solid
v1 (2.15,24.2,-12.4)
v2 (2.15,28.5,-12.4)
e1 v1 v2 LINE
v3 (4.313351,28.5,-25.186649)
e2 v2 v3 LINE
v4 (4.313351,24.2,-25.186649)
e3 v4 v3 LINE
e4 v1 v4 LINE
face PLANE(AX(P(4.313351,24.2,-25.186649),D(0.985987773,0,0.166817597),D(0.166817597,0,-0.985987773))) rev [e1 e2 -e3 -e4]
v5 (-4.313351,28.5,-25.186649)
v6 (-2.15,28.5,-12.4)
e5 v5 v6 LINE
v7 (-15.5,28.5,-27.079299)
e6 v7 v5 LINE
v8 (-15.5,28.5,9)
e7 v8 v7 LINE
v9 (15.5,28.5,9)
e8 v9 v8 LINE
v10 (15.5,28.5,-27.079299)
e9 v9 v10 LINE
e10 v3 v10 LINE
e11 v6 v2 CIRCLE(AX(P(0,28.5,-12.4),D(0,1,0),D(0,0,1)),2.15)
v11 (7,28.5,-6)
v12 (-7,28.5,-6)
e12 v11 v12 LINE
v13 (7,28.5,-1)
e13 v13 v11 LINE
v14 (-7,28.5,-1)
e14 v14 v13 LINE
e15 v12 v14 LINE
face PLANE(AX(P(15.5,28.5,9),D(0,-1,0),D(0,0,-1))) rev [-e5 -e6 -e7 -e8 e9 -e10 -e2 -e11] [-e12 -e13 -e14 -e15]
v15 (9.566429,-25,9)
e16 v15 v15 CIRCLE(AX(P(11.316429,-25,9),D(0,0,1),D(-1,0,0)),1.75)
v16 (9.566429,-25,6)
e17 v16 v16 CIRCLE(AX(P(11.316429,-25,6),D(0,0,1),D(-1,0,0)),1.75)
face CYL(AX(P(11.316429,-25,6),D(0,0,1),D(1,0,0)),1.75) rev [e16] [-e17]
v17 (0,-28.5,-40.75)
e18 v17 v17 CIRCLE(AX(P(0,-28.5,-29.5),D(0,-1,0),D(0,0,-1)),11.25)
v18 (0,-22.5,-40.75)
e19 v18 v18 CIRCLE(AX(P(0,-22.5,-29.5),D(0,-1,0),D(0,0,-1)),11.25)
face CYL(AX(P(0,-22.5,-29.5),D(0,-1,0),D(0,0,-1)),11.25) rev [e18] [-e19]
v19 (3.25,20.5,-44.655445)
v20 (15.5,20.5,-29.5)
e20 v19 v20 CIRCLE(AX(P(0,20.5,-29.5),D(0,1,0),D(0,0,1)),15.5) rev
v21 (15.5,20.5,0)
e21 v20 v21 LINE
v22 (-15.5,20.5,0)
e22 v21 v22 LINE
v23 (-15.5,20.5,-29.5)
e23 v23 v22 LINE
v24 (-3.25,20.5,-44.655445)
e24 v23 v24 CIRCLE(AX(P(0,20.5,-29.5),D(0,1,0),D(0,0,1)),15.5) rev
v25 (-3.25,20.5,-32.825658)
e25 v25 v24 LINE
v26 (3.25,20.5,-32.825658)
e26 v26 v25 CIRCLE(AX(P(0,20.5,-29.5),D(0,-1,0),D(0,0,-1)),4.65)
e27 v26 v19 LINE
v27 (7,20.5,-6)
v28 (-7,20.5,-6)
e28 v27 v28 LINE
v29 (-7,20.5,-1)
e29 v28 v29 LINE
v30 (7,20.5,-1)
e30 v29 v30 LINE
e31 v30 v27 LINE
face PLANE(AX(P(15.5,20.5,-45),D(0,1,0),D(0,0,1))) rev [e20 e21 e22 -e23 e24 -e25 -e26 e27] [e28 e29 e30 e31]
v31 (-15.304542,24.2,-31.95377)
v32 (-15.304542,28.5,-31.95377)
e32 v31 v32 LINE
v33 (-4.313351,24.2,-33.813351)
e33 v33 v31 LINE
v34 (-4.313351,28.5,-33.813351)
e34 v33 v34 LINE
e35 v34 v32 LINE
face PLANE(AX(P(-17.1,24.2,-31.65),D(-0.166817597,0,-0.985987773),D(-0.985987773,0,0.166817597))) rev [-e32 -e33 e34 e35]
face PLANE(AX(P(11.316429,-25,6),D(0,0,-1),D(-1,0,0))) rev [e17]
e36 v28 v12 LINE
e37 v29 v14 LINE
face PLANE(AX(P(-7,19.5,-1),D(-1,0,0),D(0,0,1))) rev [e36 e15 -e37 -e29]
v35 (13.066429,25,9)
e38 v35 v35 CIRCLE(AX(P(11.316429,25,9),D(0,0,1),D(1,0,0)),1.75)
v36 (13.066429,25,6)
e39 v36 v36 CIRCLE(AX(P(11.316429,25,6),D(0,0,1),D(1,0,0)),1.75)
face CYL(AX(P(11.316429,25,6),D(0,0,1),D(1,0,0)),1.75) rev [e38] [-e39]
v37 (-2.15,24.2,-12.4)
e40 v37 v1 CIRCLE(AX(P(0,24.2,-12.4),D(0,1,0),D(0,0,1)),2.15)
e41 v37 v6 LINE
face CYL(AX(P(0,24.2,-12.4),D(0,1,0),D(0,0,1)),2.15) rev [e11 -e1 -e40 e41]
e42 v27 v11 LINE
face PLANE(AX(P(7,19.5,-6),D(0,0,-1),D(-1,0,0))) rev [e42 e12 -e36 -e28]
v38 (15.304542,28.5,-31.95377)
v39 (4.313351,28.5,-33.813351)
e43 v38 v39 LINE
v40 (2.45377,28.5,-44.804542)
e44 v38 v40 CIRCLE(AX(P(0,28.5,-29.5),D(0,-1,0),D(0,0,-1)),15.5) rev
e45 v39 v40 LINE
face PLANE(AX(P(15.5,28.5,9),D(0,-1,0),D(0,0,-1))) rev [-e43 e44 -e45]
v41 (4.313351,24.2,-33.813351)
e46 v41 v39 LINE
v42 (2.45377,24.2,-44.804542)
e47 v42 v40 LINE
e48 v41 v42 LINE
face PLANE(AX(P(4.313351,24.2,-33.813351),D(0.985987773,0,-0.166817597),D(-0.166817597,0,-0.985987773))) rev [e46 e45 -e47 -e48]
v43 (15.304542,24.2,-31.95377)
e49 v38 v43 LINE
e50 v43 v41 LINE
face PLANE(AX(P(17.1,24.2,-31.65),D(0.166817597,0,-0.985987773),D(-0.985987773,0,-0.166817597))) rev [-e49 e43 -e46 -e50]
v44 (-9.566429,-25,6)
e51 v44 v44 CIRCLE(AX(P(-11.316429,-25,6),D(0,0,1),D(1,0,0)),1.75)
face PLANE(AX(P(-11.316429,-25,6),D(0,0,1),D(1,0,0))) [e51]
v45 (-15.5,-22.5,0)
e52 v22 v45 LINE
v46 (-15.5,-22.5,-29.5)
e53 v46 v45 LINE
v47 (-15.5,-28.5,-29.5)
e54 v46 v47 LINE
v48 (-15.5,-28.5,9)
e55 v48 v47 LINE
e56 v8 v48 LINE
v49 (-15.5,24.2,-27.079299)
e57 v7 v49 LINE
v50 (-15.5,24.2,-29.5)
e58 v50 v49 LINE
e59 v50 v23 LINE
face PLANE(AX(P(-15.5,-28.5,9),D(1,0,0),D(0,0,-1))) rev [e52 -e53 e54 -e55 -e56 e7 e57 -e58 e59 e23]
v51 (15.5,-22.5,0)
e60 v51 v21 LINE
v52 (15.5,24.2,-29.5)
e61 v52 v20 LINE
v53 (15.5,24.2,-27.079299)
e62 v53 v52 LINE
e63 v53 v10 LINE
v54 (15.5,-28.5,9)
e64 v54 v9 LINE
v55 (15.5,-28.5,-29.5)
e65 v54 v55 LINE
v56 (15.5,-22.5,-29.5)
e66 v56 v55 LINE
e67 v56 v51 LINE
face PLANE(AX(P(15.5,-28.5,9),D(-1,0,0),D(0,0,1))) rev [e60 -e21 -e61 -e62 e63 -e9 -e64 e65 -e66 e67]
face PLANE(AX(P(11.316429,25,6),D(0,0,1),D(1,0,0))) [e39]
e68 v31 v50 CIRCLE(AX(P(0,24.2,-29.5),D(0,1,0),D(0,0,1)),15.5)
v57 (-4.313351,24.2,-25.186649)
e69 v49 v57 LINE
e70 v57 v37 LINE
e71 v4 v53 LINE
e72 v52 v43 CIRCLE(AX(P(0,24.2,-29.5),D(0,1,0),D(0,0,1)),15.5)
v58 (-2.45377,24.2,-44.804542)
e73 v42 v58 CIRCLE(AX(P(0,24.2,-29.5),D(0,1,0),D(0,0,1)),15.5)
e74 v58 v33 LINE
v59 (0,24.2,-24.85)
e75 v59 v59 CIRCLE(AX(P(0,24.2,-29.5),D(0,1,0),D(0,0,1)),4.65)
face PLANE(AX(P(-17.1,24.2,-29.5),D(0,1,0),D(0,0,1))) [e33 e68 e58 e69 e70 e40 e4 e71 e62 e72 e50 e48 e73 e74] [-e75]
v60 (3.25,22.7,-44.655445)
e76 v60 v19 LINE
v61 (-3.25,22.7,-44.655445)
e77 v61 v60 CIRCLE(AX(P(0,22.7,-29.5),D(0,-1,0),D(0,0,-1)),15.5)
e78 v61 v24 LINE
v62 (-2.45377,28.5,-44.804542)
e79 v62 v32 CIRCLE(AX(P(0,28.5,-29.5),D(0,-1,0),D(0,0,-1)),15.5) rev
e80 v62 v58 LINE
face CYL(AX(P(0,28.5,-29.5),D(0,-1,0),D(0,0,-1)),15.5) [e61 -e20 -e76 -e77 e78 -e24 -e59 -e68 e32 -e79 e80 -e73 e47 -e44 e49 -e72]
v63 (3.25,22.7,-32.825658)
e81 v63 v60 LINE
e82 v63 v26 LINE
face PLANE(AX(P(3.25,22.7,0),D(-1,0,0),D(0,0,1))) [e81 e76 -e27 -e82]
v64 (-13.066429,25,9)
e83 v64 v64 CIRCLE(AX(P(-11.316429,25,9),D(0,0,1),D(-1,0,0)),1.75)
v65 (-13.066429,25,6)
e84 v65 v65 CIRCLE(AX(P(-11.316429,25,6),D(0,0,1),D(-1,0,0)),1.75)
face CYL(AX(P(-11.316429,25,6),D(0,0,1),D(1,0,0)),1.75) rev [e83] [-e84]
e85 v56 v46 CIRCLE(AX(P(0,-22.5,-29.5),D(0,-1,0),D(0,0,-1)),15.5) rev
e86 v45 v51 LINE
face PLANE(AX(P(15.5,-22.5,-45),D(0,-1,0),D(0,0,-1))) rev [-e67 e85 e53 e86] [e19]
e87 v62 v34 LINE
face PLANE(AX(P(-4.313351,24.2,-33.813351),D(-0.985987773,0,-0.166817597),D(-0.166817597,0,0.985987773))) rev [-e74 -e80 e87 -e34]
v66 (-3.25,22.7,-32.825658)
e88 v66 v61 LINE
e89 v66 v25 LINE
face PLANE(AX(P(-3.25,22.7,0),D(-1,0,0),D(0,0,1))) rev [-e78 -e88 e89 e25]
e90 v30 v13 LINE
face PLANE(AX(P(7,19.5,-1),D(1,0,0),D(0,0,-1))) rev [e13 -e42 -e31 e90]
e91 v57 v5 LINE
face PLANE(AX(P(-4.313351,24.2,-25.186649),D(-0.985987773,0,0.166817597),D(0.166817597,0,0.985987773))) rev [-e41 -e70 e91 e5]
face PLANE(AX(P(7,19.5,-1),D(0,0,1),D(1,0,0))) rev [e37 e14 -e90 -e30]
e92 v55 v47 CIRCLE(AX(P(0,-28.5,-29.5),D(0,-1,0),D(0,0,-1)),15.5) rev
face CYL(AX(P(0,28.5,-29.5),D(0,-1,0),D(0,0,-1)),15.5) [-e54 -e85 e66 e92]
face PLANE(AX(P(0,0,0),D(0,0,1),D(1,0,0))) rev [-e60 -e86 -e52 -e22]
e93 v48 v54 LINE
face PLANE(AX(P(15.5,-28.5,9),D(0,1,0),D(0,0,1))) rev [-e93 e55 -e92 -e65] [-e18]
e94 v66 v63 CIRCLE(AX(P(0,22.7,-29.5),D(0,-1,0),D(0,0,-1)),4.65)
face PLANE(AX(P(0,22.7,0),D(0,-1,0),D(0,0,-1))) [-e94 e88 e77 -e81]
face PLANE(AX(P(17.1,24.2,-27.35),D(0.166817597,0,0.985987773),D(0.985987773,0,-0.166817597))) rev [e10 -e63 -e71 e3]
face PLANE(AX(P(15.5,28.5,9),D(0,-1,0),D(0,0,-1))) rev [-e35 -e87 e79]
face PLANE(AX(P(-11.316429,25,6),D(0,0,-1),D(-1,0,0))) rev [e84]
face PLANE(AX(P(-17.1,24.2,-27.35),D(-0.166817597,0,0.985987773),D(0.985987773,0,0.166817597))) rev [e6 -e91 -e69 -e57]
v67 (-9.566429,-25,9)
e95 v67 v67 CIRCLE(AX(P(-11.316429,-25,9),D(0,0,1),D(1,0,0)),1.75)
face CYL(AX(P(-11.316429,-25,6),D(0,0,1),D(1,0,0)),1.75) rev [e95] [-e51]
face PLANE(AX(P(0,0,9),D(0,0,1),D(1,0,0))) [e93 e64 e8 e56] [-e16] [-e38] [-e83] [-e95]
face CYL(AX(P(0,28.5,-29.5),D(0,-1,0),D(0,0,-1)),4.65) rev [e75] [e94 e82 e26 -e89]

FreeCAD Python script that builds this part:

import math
import FreeCAD as App
import Part
import Sketcher

V = App.Vector

doc = App.newDocument("Part")
body = doc.addObject("PartDesign::Body", "Body")

sketch1 = body.newObject("Sketcher::SketchObject", "Sketch")
sketch1.AttachmentSupport = (doc.getObject("XY_Plane"), [""])
sketch1.MapMode = "FlatFace"
sketch1.addGeometry([
    Part.LineSegment(V(-16, -28, 0), V(16, -28, 0)),
    Part.LineSegment(V(16, -28, 0), V(16, 28, 0)),
    Part.LineSegment(V(16, 28, 0), V(-16, 28, 0)),
    Part.LineSegment(V(-16, 28, 0), V(-16, -28, 0)),
], False)
sketch1.addConstraint([
    Sketcher.Constraint("Coincident", 0, 2, 1, 1),
    Sketcher.Constraint("Coincident", 1, 2, 2, 1),
    Sketcher.Constraint("Coincident", 2, 2, 3, 1),
    Sketcher.Constraint("Coincident", 3, 2, 0, 1),
    Sketcher.Constraint("Horizontal", 0),
    Sketcher.Constraint("Vertical", 1),
    Sketcher.Constraint("Horizontal", 2),
    Sketcher.Constraint("Vertical", 3),
    Sketcher.Constraint("Symmetric", 0, 2, 2, 2, -1, 1),
    Sketcher.Constraint("DistanceX", 0, 1, 0, 2, 31.0),
    Sketcher.Constraint("DistanceY", 1, 1, 1, 2, 57.0),
])
pad1 = body.newObject("PartDesign::Pad", "Pad")
pad1.Profile = sketch1
pad1.Length = 9

sketch2 = body.newObject("Sketcher::SketchObject", "Sketch001")
sketch2.AttachmentSupport = (doc.getObject("XY_Plane"), [""])
sketch2.MapMode = "FlatFace"
sketch2.addGeometry([
    Part.LineSegment(V(16, 28, 0), V(16, 20, 0)),
    Part.LineSegment(V(16, 20, 0), V(-16, 20, 0)),
    Part.LineSegment(V(-16, 20, 0), V(-16, 28, 0)),
    Part.LineSegment(V(-16, 28, 0), V(16, 28, 0)),
    Part.LineSegment(V(16, -22, 0), V(16, -28, 0)),
    Part.LineSegment(V(16, -28, 0), V(-16, -28, 0)),
    Part.LineSegment(V(-16, -28, 0), V(-16, -22, 0)),
    Part.LineSegment(V(-16, -22, 0), V(16, -22, 0)),
], False)
sketch2.addConstraint([
    Sketcher.Constraint("Coincident", 0, 2, 1, 1),
    Sketcher.Constraint("Coincident", 1, 2, 2, 1),
    Sketcher.Constraint("Coincident", 2, 2, 3, 1),
    Sketcher.Constraint("Coincident", 3, 2, 0, 1),
    Sketcher.Constraint("Coincident", 4, 2, 5, 1),
    Sketcher.Constraint("Coincident", 5, 2, 6, 1),
    Sketcher.Constraint("Coincident", 6, 2, 7, 1),
    Sketcher.Constraint("Coincident", 7, 2, 4, 1),
    Sketcher.Constraint("Vertical", 0),
    Sketcher.Constraint("Horizontal", 1),
    Sketcher.Constraint("Vertical", 2),
    Sketcher.Constraint("Horizontal", 3),
    Sketcher.Constraint("Vertical", 4),
    Sketcher.Constraint("Horizontal", 5),
    Sketcher.Constraint("Vertical", 6),
    Sketcher.Constraint("Horizontal", 7),
    Sketcher.Constraint("Symmetric", 2, 2, 4, 2, -1, 1),
    Sketcher.Constraint("Vertical", 3, 2, 4, 2),
    Sketcher.Constraint("Vertical", 2, 2, 5, 2),
    Sketcher.Constraint("DistanceX", 1, 2, 1, 1, 31.0),
    Sketcher.Constraint("DistanceY", 0, 2, 0, 1, 8.0),
    Sketcher.Constraint("DistanceY", 4, 2, 4, 1, 6.0),
    Sketcher.Constraint("DistanceY", 4, 2, 0, 2, 49.0),
])
pad2 = body.newObject("PartDesign::Pad", "Pad001")
pad2.Profile = sketch2
pad2.Length = 45
pad2.Reversed = True

sketch3 = body.newObject("Sketcher::SketchObject", "Sketch002")
sketch3.AttachmentSupport = (doc.getObject("XZ_Plane"), [""])
sketch3.MapMode = "FlatFace"
sketch3.AttachmentOffset = App.Placement(V(0, 0, 28.5), App.Rotation())
sketch3.addGeometry([
    Part.ArcOfCircle(Part.Circle(V(0, -30, 0), V(0, 0, 1), 16), math.radians(-90), math.radians(0)),
    Part.LineSegment(V(0, -45, 0), V(16, -45, 0)),
    Part.LineSegment(V(16, -45, 0), V(16, -30, 0)),
    Part.ArcOfCircle(Part.Circle(V(0, -30, 0), V(0, 0, 1), 16), math.radians(180), math.radians(270)),
    Part.LineSegment(V(-16, -30, 0), V(-16, -45, 0)),
    Part.LineSegment(V(-16, -45, 0), V(0, -45, 0)),
], False)
sketch3.addConstraint([
    Sketcher.Constraint("Tangent", 0, 1, 1, 1),
    Sketcher.Constraint("Coincident", 1, 2, 2, 1),
    Sketcher.Constraint("Tangent", 2, 2, 0, 2),
    Sketcher.Constraint("Tangent", 3, 1, 4, 1),
    Sketcher.Constraint("Coincident", 4, 2, 5, 1),
    Sketcher.Constraint("Tangent", 5, 2, 3, 2),
    Sketcher.Constraint("Horizontal", 1),
    Sketcher.Constraint("Vertical", 2),
    Sketcher.Constraint("Vertical", 4),
    Sketcher.Constraint("Horizontal", 5),
    Sketcher.Constraint("Coincident", 3, 3, 0, 3),
    Sketcher.Constraint("Equal", 0, 3),
    Sketcher.Constraint("PointOnObject", 0, 3, -2),
    Sketcher.Constraint("Radius", 0, 15.5),
    Sketcher.Constraint("DistanceY", 0, 1, -1, 1, 45.0),
])
pocket1 = body.newObject("PartDesign::Pocket", "Pocket")
pocket1.Profile = sketch3
pocket1.Type = "ThroughAll"

sketch4 = body.newObject("Sketcher::SketchObject", "Sketch003")
sketch4.AttachmentSupport = (doc.getObject("XZ_Plane"), [""])
sketch4.MapMode = "FlatFace"
sketch4.AttachmentOffset = App.Placement(V(0, 0, 28.5), App.Rotation())
sketch4.addGeometry(Part.Circle(V(0, -30, 0), V(0, 0, 1), 11), False)
sketch4.addConstraint([
    Sketcher.Constraint("PointOnObject", 0, 3, -2),
    Sketcher.Constraint("Diameter", 0, 22.5),
    Sketcher.Constraint("DistanceY", 0, 3, -1, 1, 29.5),
])
pocket2 = body.newObject("PartDesign::Pocket", "Pocket001")
pocket2.Profile = sketch4
pocket2.Length = 6

sketch5 = body.newObject("Sketcher::SketchObject", "Sketch004")
sketch5.AttachmentSupport = (doc.getObject("XZ_Plane"), [""])
sketch5.MapMode = "FlatFace"
sketch5.AttachmentOffset = App.Placement(V(0, 0, -28.5), App.Rotation())
sketch5.addGeometry([
    Part.LineSegment(V(-4.3, -33.8, 0), V(-17.1, -31.6, 0)),
    Part.ArcOfCircle(Part.Circle(V(-17.1, -29.5, 0), V(0, 0, 1), 2.1), math.radians(90), math.radians(270)),
    Part.LineSegment(V(-17.1, -27.4, 0), V(-4.3, -25.2, 0)),
    Part.LineSegment(V(-4.3, -25.2, 0), V(-2.1, -12.4, 0)),
    Part.ArcOfCircle(Part.Circle(V(0, -12.4, 0), V(0, 0, 1), 2.1), math.radians(0), math.radians(180)),
    Part.LineSegment(V(2.1, -12.4, 0), V(4.3, -25.2, 0)),
    Part.LineSegment(V(4.3, -25.2, 0), V(17.1, -27.4, 0)),
    Part.ArcOfCircle(Part.Circle(V(17.1, -29.5, 0), V(0, 0, 1), 2.1), math.radians(-90), math.radians(90)),
    Part.LineSegment(V(17.1, -31.6, 0), V(4.3, -33.8, 0)),
    Part.LineSegment(V(4.3, -33.8, 0), V(2.1, -46.6, 0)),
    Part.ArcOfCircle(Part.Circle(V(0, -46.6, 0), V(0, 0, 1), 2.1), math.radians(180), math.radians(360)),
    Part.LineSegment(V(-2.1, -46.6, 0), V(-4.3, -33.8, 0)),
], False)
sketch5.addConstraint([
    Sketcher.Constraint("Coincident", 0, 2, 1, 2),
    Sketcher.Constraint("Coincident", 1, 1, 2, 1),
    Sketcher.Constraint("Coincident", 2, 2, 3, 1),
    Sketcher.Constraint("Coincident", 3, 2, 4, 2),
    Sketcher.Constraint("Coincident", 4, 1, 5, 1),
    Sketcher.Constraint("Coincident", 5, 2, 6, 1),
    Sketcher.Constraint("Coincident", 6, 2, 7, 2),
    Sketcher.Constraint("Coincident", 7, 1, 8, 1),
    Sketcher.Constraint("Coincident", 8, 2, 9, 1),
    Sketcher.Constraint("Coincident", 9, 2, 10, 2),
    Sketcher.Constraint("Coincident", 10, 1, 11, 1),
    Sketcher.Constraint("Coincident", 11, 2, 0, 1),
    Sketcher.Constraint("Equal", 1, 4),
    Sketcher.Constraint("Equal", 4, 7),
    Sketcher.Constraint("Equal", 7, 10),
    Sketcher.Constraint("Symmetric", 1, 3, 7, 3, -2),
    Sketcher.Constraint("Symmetric", 3, 2, 4, 1, -2),
    Sketcher.Constraint("Symmetric", 2, 2, 5, 2, -2),
    Sketcher.Constraint("Symmetric", 9, 2, 10, 1, -2),
    Sketcher.Constraint("Symmetric", 8, 2, 11, 2, -2),
    Sketcher.Constraint("Perpendicular", 0, 3),
    Sketcher.Constraint("Perpendicular", 2, 5),
    Sketcher.Constraint("Perpendicular", 3, 6),
    Sketcher.Constraint("Perpendicular", 5, 8),
    Sketcher.Constraint("Perpendicular", 6, 9),
    Sketcher.Constraint("Horizontal", 4, 3, 3, 2),
    Sketcher.Constraint("Horizontal", 10, 3, 9, 2),
    Sketcher.Constraint("Vertical", 1, 3, 0, 2),
    Sketcher.Constraint("Vertical", 0, 2, 1, 1),
    Sketcher.Constraint("Vertical", 5, 2, 8, 2),
    Sketcher.Constraint("Equal", 2, 3),
    Sketcher.Constraint("Radius", 1, 2.15),
    Sketcher.Constraint("DistanceX", 1, 3, -1, 1, 17.1),
    Sketcher.Constraint("DistanceY", 1, 3, -1, 1, 29.5),
    Sketcher.Constraint("DistanceX", 2, 2, -1, 1, 4.313351),
])
pocket3 = body.newObject("PartDesign::Pocket", "Pocket002")
pocket3.Profile = sketch5
pocket3.Length = 4.3
pocket3.Reversed = True

sketch6 = body.newObject("Sketcher::SketchObject", "Sketch005")
sketch6.AttachmentSupport = (doc.getObject("XZ_Plane"), [""])
sketch6.MapMode = "FlatFace"
sketch6.AttachmentOffset = App.Placement(V(0, 0, -20.5), App.Rotation())
sketch6.addGeometry([
    Part.ArcOfCircle(Part.Circle(V(0, -29.5, 0), V(0, 0, 1), 4.7), math.radians(-134), math.radians(-46)),
    Part.LineSegment(V(-3.2, -32.8, 0), V(-3.2, -44.7, 0)),
    Part.ArcOfCircle(Part.Circle(V(0, -29.5, 0), V(0, 0, 1), 15.5), math.radians(-102), math.radians(-78)),
    Part.LineSegment(V(3.2, -44.7, 0), V(3.2, -32.8, 0)),
], False)
sketch6.addConstraint([
    Sketcher.Constraint("Coincident", 0, 1, 1, 1),
    Sketcher.Constraint("Coincident", 1, 2, 2, 1),
    Sketcher.Constraint("Coincident", 2, 2, 3, 1),
    Sketcher.Constraint("Coincident", 3, 2, 0, 2),
    Sketcher.Constraint("Vertical", 1),
    Sketcher.Constraint("Vertical", 3),
    Sketcher.Constraint("Coincident", 2, 3, 0, 3),
    Sketcher.Constraint("Symmetric", 1, 2, 2, 2, -2),
    Sketcher.Constraint("Radius", 2, 15.5),
    Sketcher.Constraint("Radius", 0, 4.65),
    Sketcher.Constraint("DistanceY", 0, 3, -1, 1, 29.5),
    Sketcher.Constraint("DistanceX", 1, 2, 2, 2, 6.5),
])
pocket4 = body.newObject("PartDesign::Pocket", "Pocket003")
pocket4.Profile = sketch6
pocket4.Length = 2.2

sketch7 = body.newObject("Sketcher::SketchObject", "Sketch006")
sketch7.AttachmentSupport = (doc.getObject("XZ_Plane"), [""])
sketch7.MapMode = "FlatFace"
sketch7.AttachmentOffset = App.Placement(V(0, 0, -20.5), App.Rotation())
sketch7.addGeometry(Part.Circle(V(0, -29.5, 0), V(0, 0, 1), 4.7), False)
sketch7.addConstraint([
    Sketcher.Constraint("PointOnObject", 0, 3, -2),
    Sketcher.Constraint("Diameter", 0, 9.3),
    Sketcher.Constraint("DistanceY", 0, 3, -1, 1, 29.5),
])
pocket5 = body.newObject("PartDesign::Pocket", "Pocket004")
pocket5.Profile = sketch7
pocket5.Length = 8

sketch8 = body.newObject("Sketcher::SketchObject", "Sketch007")
sketch8.AttachmentSupport = (doc.getObject("XZ_Plane"), [""])
sketch8.MapMode = "FlatFace"
sketch8.AttachmentOffset = App.Placement(V(0, 0, -28.5), App.Rotation())
sketch8.addGeometry([
    Part.LineSegment(V(-7, -6, 0), V(-7, -1, 0)),
    Part.LineSegment(V(-7, -1, 0), V(7, -1, 0)),
    Part.LineSegment(V(7, -1, 0), V(7, -6, 0)),
    Part.LineSegment(V(7, -6, 0), V(-7, -6, 0)),
], False)
sketch8.addConstraint([
    Sketcher.Constraint("Coincident", 0, 2, 1, 1),
    Sketcher.Constraint("Coincident", 1, 2, 2, 1),
    Sketcher.Constraint("Coincident", 2, 2, 3, 1),
    Sketcher.Constraint("Coincident", 3, 2, 0, 1),
    Sketcher.Constraint("Vertical", 0),
    Sketcher.Constraint("Horizontal", 1),
    Sketcher.Constraint("Vertical", 2),
    Sketcher.Constraint("Horizontal", 3),
    Sketcher.Constraint("DistanceX", 1, 1, 1, 2, 14.0),
    Sketcher.Constraint("DistanceY", 0, 1, 0, 2, 5.0),
    Sketcher.Constraint("DistanceX", 0, 2, -1, 1, 7.0),
    Sketcher.Constraint("DistanceY", 0, 2, -1, 1, 1.0),
])
pocket6 = body.newObject("PartDesign::Pocket", "Pocket005")
pocket6.Profile = sketch8
pocket6.Length = 9
pocket6.Reversed = True

sketch9 = body.newObject("Sketcher::SketchObject", "Sketch008")
sketch9.AttachmentSupport = (doc.getObject("XY_Plane"), [""])
sketch9.MapMode = "FlatFace"
sketch9.AttachmentOffset = App.Placement(V(0, 0, 9), App.Rotation())
sketch9.addGeometry([
    Part.Circle(V(11.3, 25, 0), V(0, 0, 1), 1.8),
    Part.Circle(V(-11.3, 25, 0), V(0, 0, 1), 1.8),
    Part.Circle(V(11.3, -25, 0), V(0, 0, 1), 1.8),
    Part.Circle(V(-11.3, -25, 0), V(0, 0, 1), 1.8),
], False)
sketch9.addConstraint([
    Sketcher.Constraint("Equal", 0, 1),
    Sketcher.Constraint("Equal", 1, 2),
    Sketcher.Constraint("Equal", 2, 3),
    Sketcher.Constraint("Symmetric", 1, 3, 2, 3, -1, 1),
    Sketcher.Constraint("Symmetric", 0, 3, 3, 3, -1, 1),
    Sketcher.Constraint("Symmetric", 0, 3, 1, 3, -2),
    Sketcher.Constraint("Diameter", 0, 3.5),
    Sketcher.Constraint("DistanceY", -1, 1, 0, 3, 25.0),
    Sketcher.Constraint("DistanceX", -1, 1, 0, 3, 11.316429),
])
pocket7 = body.newObject("PartDesign::Pocket", "Pocket006")
pocket7.Profile = sketch9
pocket7.Length = 3

doc.recompute()
